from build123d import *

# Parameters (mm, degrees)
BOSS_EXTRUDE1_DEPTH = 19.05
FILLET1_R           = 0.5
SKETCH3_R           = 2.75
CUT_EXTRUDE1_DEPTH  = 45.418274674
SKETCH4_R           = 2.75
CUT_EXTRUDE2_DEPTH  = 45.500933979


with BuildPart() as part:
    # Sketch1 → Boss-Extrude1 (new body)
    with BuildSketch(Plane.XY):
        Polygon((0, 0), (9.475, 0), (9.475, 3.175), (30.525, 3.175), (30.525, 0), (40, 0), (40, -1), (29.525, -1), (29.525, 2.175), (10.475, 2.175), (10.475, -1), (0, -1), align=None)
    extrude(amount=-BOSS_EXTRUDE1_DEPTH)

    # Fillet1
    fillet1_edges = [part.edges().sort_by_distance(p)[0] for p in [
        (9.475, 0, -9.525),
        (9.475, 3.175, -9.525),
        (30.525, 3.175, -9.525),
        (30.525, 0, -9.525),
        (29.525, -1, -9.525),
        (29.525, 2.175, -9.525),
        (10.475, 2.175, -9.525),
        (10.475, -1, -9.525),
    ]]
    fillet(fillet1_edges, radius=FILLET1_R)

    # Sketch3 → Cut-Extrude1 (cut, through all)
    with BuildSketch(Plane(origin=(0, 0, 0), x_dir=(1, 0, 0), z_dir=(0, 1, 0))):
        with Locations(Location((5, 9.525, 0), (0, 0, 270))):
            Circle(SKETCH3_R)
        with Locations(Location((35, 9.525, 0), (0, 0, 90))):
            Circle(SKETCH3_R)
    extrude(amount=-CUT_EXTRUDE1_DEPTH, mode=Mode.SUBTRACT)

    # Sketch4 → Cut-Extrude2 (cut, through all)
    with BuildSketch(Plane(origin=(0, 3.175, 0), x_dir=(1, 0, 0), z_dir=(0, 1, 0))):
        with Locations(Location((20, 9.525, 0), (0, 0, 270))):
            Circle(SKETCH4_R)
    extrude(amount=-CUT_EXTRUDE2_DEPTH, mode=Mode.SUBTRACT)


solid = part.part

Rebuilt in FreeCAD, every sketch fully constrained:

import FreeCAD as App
import Part
import Sketcher
from FreeCAD import Vector


def edges_at(feature, points):
    """Names of the edges that pass closest to the given points."""
    edges = feature.Shape.Edges
    near = lambda p: min(range(len(edges)), key=lambda i: edges[i].distToShape(Part.Vertex(*p))[0])
    return sorted({f"Edge{near(p) + 1}" for p in points})


def add_polygon(sketch, points):
    """Adds a closed chain of lines whose ends are joined by coincident constraints."""
    first, n = sketch.GeometryCount, len(points)
    for a, b in zip(points, points[1:] + points[:1]):
        sketch.addGeometry(Part.LineSegment(App.Vector(*a, 0), App.Vector(*b, 0)), False)
    for i in range(n):
        sketch.addConstraint(Sketcher.Constraint("Coincident", first + i, 2, first + (i + 1) % n, 1))

doc = App.newDocument("Part")
body = doc.addObject("PartDesign::Body", "Body")

sketch1 = doc.addObject("Sketcher::SketchObject", "Sketch")
body.addObject(sketch1)
sketch1.AttachmentSupport = (doc.XY_Plane, [""])
sketch1.MapMode = "FlatFace"
add_polygon(sketch1, [(9.475, 0), (0, 0), (0, -1), (10.475, -1), (10.475, 2.175), (29.525, 2.175), (29.525, -1), (40, -1), (40, 0), (30.525, 0), (30.525, 3.175), (9.475, 3.175)])
sketch1.addConstraint(Sketcher.Constraint("Horizontal", 0))
sketch1.addConstraint(Sketcher.Constraint("Vertical", 1))
sketch1.addConstraint(Sketcher.Constraint("Horizontal", 2))
sketch1.addConstraint(Sketcher.Constraint("Vertical", 3))
sketch1.addConstraint(Sketcher.Constraint("Horizontal", 4))
sketch1.addConstraint(Sketcher.Constraint("Vertical", 5))
sketch1.addConstraint(Sketcher.Constraint("Horizontal", 6))
sketch1.addConstraint(Sketcher.Constraint("Vertical", 7))
sketch1.addConstraint(Sketcher.Constraint("Horizontal", 8))
sketch1.addConstraint(Sketcher.Constraint("Vertical", 9))
sketch1.addConstraint(Sketcher.Constraint("Horizontal", 10))
sketch1.addConstraint(Sketcher.Constraint("Vertical", 11))
sketch1.addConstraint(Sketcher.Constraint("Coincident", 0, 2, -1, 1))
sketch1.addConstraint(Sketcher.Constraint("PointOnObject", 7, 2, -1))
sketch1.addConstraint(Sketcher.Constraint("Horizontal", 2, 2, 5, 2))
sketch1.addConstraint(Sketcher.Constraint("Equal", 2, 6))
sketch1.addConstraint(Sketcher.Constraint("Equal", 0, 8))
sketch1.addConstraint(Sketcher.Constraint("Equal", 5, 9))
sketch1.addConstraint(Sketcher.Constraint("DistanceY", 1, 2, 1, 1, 1.0))
sketch1.addConstraint(Sketcher.Constraint("DistanceX", -1, 1, 6, 2, 40.0))
sketch1.addConstraint(Sketcher.Constraint("DistanceX", 5, 2, 8, 2, 1.0))
sketch1.addConstraint(Sketcher.Constraint("DistanceX", 4, 1, 4, 2, 19.05))
sketch1.addConstraint(Sketcher.Constraint("DistanceY", 3, 1, 3, 2, 3.175))
pad1 = doc.addObject("PartDesign::Pad", "Pad")
body.addObject(pad1)
pad1.Profile = sketch1
pad1.Length = 19.05
pad1.Reversed = True
doc.recompute()

fillet = doc.addObject("PartDesign::Fillet", "Fillet")
body.addObject(fillet)
fillet.Base = (pad1, edges_at(pad1, [
    (9.475, 0, -9.525),
    (9.475, 3.175, -9.525),
    (30.525, 3.175, -9.525),
    (30.525, 0, -9.525),
    (29.525, -1, -9.525),
    (29.525, 2.175, -9.525),
    (10.475, 2.175, -9.525),
    (10.475, -1, -9.525),
]))
fillet.Radius = 0.5

sketch2 = doc.addObject("Sketcher::SketchObject", "Sketch001")
body.addObject(sketch2)
sketch2.AttachmentSupport = (doc.XZ_Plane, [""])
sketch2.MapMode = "FlatFace"
sketch2.addGeometry(Part.Circle(Vector(5, -9.525, 0), Vector(0, 0, 1), 2.75), False)
sketch2.addGeometry(Part.Circle(Vector(35, -9.525, 0), Vector(0, 0, 1), 2.75), False)
sketch2.addConstraint(Sketcher.Constraint("Equal", 0, 1))
sketch2.addConstraint(Sketcher.Constraint("Horizontal", 0, 3, 1, 3))
sketch2.addConstraint(Sketcher.Constraint("Diameter", 0, 5.5))
sketch2.addConstraint(Sketcher.Constraint("DistanceX", -1, 1, 0, 3, 5.0))
sketch2.addConstraint(Sketcher.Constraint("DistanceX", -1, 1, 1, 3, 35.0))
sketch2.addConstraint(Sketcher.Constraint("DistanceY", 0, 3, -1, 1, 9.525))
pocket1 = doc.addObject("PartDesign::Pocket", "Pocket")
body.addObject(pocket1)
pocket1.Profile = sketch2
pocket1.Type = "ThroughAll"
pocket1.Reversed = True

sketch3 = doc.addObject("Sketcher::SketchObject", "Sketch002")
body.addObject(sketch3)
sketch3.AttachmentSupport = (doc.XZ_Plane, [""])
sketch3.MapMode = "FlatFace"
sketch3.AttachmentOffset = App.Placement(Vector(0, 0, -3.175), App.Rotation())
sketch3.addGeometry(Part.Circle(Vector(20, -9.525, 0), Vector(0, 0, 1), 2.75), False)
sketch3.addConstraint(Sketcher.Constraint("Diameter", 0, 5.5))
sketch3.addConstraint(Sketcher.Constraint("DistanceX", -1, 1, 0, 3, 20.0))
sketch3.addConstraint(Sketcher.Constraint("DistanceY", 0, 3, -1, 1, 9.525))
pocket2 = doc.addObject("PartDesign::Pocket", "Pocket001")
body.addObject(pocket2)
pocket2.Profile = sketch3
pocket2.Type = "ThroughAll"
pocket2.Reversed = True

doc.recompute()
